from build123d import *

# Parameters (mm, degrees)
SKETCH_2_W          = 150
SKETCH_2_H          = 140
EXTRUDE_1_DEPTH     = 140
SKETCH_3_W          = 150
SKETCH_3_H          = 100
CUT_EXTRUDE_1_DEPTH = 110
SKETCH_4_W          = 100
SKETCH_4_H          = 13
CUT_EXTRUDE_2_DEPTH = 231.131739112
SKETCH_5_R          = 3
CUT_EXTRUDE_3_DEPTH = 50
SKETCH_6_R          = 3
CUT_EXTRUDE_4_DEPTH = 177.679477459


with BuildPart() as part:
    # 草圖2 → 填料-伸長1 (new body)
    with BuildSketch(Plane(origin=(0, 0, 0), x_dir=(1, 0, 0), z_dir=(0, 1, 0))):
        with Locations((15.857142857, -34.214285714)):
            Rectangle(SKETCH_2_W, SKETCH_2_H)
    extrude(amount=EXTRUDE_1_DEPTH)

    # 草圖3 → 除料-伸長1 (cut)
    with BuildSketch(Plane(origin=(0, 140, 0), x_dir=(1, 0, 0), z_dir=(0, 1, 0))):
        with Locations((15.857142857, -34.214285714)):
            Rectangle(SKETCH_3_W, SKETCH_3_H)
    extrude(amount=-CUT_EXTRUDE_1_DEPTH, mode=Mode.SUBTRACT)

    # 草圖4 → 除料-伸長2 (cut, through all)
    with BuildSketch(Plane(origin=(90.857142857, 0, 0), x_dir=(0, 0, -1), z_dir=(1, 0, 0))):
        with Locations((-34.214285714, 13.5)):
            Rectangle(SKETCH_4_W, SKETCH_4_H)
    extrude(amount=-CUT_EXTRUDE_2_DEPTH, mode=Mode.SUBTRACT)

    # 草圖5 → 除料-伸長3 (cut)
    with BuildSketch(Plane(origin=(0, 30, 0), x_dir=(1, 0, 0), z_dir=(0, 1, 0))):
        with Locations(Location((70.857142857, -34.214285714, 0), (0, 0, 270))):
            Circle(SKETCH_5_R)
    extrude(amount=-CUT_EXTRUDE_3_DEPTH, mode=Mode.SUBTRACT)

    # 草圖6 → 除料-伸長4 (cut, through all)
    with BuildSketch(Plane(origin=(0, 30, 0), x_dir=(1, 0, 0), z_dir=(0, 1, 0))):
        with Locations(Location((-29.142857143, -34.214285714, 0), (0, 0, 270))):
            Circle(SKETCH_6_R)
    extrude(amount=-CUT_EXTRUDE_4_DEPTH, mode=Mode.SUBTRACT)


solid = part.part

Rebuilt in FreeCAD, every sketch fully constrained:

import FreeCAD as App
import Part
import Sketcher


def add_polygon(sketch, points):
    """Adds a closed chain of lines whose ends are joined by coincident constraints."""
    first, n = sketch.GeometryCount, len(points)
    for a, b in zip(points, points[1:] + points[:1]):
        sketch.addGeometry(Part.LineSegment(App.Vector(*a, 0), App.Vector(*b, 0)), False)
    for i in range(n):
        sketch.addConstraint(Sketcher.Constraint("Coincident", first + i, 2, first + (i + 1) % n, 1))

doc = App.newDocument("Part")
body = doc.addObject("PartDesign::Body", "Body")

sketch1 = doc.addObject("Sketcher::SketchObject", "Sketch")
body.addObject(sketch1)
sketch1.AttachmentSupport = (doc.XZ_Plane, [""])
sketch1.MapMode = "FlatFace"
add_polygon(sketch1, [(-59.142857, -35.785714), (-59.142857, 104.214286), (90.857143, 104.214286), (90.857143, -35.785714)])
sketch1.addConstraint([
    Sketcher.Constraint("Vertical", 0),
    Sketcher.Constraint("Horizontal", 1),
    Sketcher.Constraint("Vertical", 2),
    Sketcher.Constraint("Horizontal", 3),
    Sketcher.Constraint("DistanceX", 1, 1, 1, 2, 150.0),
    Sketcher.Constraint("DistanceY", 0, 1, 0, 2, 140.0),
    Sketcher.Constraint("DistanceX", 0, 2, -1, 1, 59.142857),
    Sketcher.Constraint("DistanceY", -1, 1, 0, 2, 104.214286),
])
pad1 = doc.addObject("PartDesign::Pad", "Pad")
body.addObject(pad1)
pad1.Profile = sketch1
pad1.Length = 140
pad1.Reversed = True

sketch2 = doc.addObject("Sketcher::SketchObject", "Sketch001")
body.addObject(sketch2)
sketch2.AttachmentSupport = (doc.XZ_Plane, [""])
sketch2.MapMode = "FlatFace"
sketch2.AttachmentOffset = App.Placement(App.Vector(0, 0, -140), App.Rotation())
add_polygon(sketch2, [(-59.142857, -15.785714), (-59.142857, 84.214286), (90.857143, 84.214286), (90.857143, -15.785714)])
sketch2.addConstraint([
    Sketcher.Constraint("Vertical", 0),
    Sketcher.Constraint("Horizontal", 1),
    Sketcher.Constraint("Vertical", 2),
    Sketcher.Constraint("Horizontal", 3),
    Sketcher.Constraint("DistanceX", 1, 1, 1, 2, 150.0),
    Sketcher.Constraint("DistanceY", 0, 1, 0, 2, 100.0),
    Sketcher.Constraint("DistanceX", 0, 2, -1, 1, 59.142857),
    Sketcher.Constraint("DistanceY", -1, 1, 0, 2, 84.214286),
])
pocket1 = doc.addObject("PartDesign::Pocket", "Pocket")
body.addObject(pocket1)
pocket1.Profile = sketch2
pocket1.Length = 110
pocket1.Reversed = True

sketch3 = doc.addObject("Sketcher::SketchObject", "Sketch002")
body.addObject(sketch3)
sketch3.AttachmentSupport = (doc.YZ_Plane, [""])
sketch3.MapMode = "FlatFace"
sketch3.AttachmentOffset = App.Placement(App.Vector(0, 0, 90.857143), App.Rotation())
add_polygon(sketch3, [(20, 84.214286), (7, 84.214286), (7, -15.785714), (20, -15.785714)])
sketch3.addConstraint([
    Sketcher.Constraint("Horizontal", 0),
    Sketcher.Constraint("Vertical", 1),
    Sketcher.Constraint("Horizontal", 2),
    Sketcher.Constraint("Vertical", 3),
    Sketcher.Constraint("DistanceX", 0, 2, 0, 1, 13.0),
    Sketcher.Constraint("DistanceY", 1, 2, 1, 1, 100.0),
    Sketcher.Constraint("DistanceX", -1, 1, 0, 2, 7.0),
    Sketcher.Constraint("DistanceY", -1, 1, 0, 2, 84.214286),
])
pocket2 = doc.addObject("PartDesign::Pocket", "Pocket001")
body.addObject(pocket2)
pocket2.Profile = sketch3
pocket2.Type = "ThroughAll"

sketch4 = doc.addObject("Sketcher::SketchObject", "Sketch003")
body.addObject(sketch4)
sketch4.AttachmentSupport = (doc.XZ_Plane, [""])
sketch4.MapMode = "FlatFace"
sketch4.AttachmentOffset = App.Placement(App.Vector(0, 0, -30), App.Rotation())
sketch4.addGeometry(Part.Circle(App.Vector(70.857143, 34.214286, 0), App.Vector(0, 0, 1), 3), False)
sketch4.addConstraint([
    Sketcher.Constraint("Diameter", 0, 6.0),
    Sketcher.Constraint("DistanceX", -1, 1, 0, 3, 70.857143),
    Sketcher.Constraint("DistanceY", -1, 1, 0, 3, 34.214286),
])
pocket3 = doc.addObject("PartDesign::Pocket", "Pocket002")
body.addObject(pocket3)
pocket3.Profile = sketch4
pocket3.Length = 50
pocket3.Reversed = True

sketch5 = doc.addObject("Sketcher::SketchObject", "Sketch004")
body.addObject(sketch5)
sketch5.AttachmentSupport = (doc.XZ_Plane, [""])
sketch5.MapMode = "FlatFace"
sketch5.AttachmentOffset = App.Placement(App.Vector(0, 0, -30), App.Rotation())
sketch5.addGeometry(Part.Circle(App.Vector(-29.142857, 34.214286, 0), App.Vector(0, 0, 1), 3), False)
sketch5.addConstraint([
    Sketcher.Constraint("Diameter", 0, 6.0),
    Sketcher.Constraint("DistanceX", 0, 3, -1, 1, 29.142857),
    Sketcher.Constraint("DistanceY", -1, 1, 0, 3, 34.214286),
])
pocket4 = doc.addObject("PartDesign::Pocket", "Pocket003")
body.addObject(pocket4)
pocket4.Profile = sketch5
pocket4.Type = "ThroughAll"
pocket4.Reversed = True

doc.recompute()
